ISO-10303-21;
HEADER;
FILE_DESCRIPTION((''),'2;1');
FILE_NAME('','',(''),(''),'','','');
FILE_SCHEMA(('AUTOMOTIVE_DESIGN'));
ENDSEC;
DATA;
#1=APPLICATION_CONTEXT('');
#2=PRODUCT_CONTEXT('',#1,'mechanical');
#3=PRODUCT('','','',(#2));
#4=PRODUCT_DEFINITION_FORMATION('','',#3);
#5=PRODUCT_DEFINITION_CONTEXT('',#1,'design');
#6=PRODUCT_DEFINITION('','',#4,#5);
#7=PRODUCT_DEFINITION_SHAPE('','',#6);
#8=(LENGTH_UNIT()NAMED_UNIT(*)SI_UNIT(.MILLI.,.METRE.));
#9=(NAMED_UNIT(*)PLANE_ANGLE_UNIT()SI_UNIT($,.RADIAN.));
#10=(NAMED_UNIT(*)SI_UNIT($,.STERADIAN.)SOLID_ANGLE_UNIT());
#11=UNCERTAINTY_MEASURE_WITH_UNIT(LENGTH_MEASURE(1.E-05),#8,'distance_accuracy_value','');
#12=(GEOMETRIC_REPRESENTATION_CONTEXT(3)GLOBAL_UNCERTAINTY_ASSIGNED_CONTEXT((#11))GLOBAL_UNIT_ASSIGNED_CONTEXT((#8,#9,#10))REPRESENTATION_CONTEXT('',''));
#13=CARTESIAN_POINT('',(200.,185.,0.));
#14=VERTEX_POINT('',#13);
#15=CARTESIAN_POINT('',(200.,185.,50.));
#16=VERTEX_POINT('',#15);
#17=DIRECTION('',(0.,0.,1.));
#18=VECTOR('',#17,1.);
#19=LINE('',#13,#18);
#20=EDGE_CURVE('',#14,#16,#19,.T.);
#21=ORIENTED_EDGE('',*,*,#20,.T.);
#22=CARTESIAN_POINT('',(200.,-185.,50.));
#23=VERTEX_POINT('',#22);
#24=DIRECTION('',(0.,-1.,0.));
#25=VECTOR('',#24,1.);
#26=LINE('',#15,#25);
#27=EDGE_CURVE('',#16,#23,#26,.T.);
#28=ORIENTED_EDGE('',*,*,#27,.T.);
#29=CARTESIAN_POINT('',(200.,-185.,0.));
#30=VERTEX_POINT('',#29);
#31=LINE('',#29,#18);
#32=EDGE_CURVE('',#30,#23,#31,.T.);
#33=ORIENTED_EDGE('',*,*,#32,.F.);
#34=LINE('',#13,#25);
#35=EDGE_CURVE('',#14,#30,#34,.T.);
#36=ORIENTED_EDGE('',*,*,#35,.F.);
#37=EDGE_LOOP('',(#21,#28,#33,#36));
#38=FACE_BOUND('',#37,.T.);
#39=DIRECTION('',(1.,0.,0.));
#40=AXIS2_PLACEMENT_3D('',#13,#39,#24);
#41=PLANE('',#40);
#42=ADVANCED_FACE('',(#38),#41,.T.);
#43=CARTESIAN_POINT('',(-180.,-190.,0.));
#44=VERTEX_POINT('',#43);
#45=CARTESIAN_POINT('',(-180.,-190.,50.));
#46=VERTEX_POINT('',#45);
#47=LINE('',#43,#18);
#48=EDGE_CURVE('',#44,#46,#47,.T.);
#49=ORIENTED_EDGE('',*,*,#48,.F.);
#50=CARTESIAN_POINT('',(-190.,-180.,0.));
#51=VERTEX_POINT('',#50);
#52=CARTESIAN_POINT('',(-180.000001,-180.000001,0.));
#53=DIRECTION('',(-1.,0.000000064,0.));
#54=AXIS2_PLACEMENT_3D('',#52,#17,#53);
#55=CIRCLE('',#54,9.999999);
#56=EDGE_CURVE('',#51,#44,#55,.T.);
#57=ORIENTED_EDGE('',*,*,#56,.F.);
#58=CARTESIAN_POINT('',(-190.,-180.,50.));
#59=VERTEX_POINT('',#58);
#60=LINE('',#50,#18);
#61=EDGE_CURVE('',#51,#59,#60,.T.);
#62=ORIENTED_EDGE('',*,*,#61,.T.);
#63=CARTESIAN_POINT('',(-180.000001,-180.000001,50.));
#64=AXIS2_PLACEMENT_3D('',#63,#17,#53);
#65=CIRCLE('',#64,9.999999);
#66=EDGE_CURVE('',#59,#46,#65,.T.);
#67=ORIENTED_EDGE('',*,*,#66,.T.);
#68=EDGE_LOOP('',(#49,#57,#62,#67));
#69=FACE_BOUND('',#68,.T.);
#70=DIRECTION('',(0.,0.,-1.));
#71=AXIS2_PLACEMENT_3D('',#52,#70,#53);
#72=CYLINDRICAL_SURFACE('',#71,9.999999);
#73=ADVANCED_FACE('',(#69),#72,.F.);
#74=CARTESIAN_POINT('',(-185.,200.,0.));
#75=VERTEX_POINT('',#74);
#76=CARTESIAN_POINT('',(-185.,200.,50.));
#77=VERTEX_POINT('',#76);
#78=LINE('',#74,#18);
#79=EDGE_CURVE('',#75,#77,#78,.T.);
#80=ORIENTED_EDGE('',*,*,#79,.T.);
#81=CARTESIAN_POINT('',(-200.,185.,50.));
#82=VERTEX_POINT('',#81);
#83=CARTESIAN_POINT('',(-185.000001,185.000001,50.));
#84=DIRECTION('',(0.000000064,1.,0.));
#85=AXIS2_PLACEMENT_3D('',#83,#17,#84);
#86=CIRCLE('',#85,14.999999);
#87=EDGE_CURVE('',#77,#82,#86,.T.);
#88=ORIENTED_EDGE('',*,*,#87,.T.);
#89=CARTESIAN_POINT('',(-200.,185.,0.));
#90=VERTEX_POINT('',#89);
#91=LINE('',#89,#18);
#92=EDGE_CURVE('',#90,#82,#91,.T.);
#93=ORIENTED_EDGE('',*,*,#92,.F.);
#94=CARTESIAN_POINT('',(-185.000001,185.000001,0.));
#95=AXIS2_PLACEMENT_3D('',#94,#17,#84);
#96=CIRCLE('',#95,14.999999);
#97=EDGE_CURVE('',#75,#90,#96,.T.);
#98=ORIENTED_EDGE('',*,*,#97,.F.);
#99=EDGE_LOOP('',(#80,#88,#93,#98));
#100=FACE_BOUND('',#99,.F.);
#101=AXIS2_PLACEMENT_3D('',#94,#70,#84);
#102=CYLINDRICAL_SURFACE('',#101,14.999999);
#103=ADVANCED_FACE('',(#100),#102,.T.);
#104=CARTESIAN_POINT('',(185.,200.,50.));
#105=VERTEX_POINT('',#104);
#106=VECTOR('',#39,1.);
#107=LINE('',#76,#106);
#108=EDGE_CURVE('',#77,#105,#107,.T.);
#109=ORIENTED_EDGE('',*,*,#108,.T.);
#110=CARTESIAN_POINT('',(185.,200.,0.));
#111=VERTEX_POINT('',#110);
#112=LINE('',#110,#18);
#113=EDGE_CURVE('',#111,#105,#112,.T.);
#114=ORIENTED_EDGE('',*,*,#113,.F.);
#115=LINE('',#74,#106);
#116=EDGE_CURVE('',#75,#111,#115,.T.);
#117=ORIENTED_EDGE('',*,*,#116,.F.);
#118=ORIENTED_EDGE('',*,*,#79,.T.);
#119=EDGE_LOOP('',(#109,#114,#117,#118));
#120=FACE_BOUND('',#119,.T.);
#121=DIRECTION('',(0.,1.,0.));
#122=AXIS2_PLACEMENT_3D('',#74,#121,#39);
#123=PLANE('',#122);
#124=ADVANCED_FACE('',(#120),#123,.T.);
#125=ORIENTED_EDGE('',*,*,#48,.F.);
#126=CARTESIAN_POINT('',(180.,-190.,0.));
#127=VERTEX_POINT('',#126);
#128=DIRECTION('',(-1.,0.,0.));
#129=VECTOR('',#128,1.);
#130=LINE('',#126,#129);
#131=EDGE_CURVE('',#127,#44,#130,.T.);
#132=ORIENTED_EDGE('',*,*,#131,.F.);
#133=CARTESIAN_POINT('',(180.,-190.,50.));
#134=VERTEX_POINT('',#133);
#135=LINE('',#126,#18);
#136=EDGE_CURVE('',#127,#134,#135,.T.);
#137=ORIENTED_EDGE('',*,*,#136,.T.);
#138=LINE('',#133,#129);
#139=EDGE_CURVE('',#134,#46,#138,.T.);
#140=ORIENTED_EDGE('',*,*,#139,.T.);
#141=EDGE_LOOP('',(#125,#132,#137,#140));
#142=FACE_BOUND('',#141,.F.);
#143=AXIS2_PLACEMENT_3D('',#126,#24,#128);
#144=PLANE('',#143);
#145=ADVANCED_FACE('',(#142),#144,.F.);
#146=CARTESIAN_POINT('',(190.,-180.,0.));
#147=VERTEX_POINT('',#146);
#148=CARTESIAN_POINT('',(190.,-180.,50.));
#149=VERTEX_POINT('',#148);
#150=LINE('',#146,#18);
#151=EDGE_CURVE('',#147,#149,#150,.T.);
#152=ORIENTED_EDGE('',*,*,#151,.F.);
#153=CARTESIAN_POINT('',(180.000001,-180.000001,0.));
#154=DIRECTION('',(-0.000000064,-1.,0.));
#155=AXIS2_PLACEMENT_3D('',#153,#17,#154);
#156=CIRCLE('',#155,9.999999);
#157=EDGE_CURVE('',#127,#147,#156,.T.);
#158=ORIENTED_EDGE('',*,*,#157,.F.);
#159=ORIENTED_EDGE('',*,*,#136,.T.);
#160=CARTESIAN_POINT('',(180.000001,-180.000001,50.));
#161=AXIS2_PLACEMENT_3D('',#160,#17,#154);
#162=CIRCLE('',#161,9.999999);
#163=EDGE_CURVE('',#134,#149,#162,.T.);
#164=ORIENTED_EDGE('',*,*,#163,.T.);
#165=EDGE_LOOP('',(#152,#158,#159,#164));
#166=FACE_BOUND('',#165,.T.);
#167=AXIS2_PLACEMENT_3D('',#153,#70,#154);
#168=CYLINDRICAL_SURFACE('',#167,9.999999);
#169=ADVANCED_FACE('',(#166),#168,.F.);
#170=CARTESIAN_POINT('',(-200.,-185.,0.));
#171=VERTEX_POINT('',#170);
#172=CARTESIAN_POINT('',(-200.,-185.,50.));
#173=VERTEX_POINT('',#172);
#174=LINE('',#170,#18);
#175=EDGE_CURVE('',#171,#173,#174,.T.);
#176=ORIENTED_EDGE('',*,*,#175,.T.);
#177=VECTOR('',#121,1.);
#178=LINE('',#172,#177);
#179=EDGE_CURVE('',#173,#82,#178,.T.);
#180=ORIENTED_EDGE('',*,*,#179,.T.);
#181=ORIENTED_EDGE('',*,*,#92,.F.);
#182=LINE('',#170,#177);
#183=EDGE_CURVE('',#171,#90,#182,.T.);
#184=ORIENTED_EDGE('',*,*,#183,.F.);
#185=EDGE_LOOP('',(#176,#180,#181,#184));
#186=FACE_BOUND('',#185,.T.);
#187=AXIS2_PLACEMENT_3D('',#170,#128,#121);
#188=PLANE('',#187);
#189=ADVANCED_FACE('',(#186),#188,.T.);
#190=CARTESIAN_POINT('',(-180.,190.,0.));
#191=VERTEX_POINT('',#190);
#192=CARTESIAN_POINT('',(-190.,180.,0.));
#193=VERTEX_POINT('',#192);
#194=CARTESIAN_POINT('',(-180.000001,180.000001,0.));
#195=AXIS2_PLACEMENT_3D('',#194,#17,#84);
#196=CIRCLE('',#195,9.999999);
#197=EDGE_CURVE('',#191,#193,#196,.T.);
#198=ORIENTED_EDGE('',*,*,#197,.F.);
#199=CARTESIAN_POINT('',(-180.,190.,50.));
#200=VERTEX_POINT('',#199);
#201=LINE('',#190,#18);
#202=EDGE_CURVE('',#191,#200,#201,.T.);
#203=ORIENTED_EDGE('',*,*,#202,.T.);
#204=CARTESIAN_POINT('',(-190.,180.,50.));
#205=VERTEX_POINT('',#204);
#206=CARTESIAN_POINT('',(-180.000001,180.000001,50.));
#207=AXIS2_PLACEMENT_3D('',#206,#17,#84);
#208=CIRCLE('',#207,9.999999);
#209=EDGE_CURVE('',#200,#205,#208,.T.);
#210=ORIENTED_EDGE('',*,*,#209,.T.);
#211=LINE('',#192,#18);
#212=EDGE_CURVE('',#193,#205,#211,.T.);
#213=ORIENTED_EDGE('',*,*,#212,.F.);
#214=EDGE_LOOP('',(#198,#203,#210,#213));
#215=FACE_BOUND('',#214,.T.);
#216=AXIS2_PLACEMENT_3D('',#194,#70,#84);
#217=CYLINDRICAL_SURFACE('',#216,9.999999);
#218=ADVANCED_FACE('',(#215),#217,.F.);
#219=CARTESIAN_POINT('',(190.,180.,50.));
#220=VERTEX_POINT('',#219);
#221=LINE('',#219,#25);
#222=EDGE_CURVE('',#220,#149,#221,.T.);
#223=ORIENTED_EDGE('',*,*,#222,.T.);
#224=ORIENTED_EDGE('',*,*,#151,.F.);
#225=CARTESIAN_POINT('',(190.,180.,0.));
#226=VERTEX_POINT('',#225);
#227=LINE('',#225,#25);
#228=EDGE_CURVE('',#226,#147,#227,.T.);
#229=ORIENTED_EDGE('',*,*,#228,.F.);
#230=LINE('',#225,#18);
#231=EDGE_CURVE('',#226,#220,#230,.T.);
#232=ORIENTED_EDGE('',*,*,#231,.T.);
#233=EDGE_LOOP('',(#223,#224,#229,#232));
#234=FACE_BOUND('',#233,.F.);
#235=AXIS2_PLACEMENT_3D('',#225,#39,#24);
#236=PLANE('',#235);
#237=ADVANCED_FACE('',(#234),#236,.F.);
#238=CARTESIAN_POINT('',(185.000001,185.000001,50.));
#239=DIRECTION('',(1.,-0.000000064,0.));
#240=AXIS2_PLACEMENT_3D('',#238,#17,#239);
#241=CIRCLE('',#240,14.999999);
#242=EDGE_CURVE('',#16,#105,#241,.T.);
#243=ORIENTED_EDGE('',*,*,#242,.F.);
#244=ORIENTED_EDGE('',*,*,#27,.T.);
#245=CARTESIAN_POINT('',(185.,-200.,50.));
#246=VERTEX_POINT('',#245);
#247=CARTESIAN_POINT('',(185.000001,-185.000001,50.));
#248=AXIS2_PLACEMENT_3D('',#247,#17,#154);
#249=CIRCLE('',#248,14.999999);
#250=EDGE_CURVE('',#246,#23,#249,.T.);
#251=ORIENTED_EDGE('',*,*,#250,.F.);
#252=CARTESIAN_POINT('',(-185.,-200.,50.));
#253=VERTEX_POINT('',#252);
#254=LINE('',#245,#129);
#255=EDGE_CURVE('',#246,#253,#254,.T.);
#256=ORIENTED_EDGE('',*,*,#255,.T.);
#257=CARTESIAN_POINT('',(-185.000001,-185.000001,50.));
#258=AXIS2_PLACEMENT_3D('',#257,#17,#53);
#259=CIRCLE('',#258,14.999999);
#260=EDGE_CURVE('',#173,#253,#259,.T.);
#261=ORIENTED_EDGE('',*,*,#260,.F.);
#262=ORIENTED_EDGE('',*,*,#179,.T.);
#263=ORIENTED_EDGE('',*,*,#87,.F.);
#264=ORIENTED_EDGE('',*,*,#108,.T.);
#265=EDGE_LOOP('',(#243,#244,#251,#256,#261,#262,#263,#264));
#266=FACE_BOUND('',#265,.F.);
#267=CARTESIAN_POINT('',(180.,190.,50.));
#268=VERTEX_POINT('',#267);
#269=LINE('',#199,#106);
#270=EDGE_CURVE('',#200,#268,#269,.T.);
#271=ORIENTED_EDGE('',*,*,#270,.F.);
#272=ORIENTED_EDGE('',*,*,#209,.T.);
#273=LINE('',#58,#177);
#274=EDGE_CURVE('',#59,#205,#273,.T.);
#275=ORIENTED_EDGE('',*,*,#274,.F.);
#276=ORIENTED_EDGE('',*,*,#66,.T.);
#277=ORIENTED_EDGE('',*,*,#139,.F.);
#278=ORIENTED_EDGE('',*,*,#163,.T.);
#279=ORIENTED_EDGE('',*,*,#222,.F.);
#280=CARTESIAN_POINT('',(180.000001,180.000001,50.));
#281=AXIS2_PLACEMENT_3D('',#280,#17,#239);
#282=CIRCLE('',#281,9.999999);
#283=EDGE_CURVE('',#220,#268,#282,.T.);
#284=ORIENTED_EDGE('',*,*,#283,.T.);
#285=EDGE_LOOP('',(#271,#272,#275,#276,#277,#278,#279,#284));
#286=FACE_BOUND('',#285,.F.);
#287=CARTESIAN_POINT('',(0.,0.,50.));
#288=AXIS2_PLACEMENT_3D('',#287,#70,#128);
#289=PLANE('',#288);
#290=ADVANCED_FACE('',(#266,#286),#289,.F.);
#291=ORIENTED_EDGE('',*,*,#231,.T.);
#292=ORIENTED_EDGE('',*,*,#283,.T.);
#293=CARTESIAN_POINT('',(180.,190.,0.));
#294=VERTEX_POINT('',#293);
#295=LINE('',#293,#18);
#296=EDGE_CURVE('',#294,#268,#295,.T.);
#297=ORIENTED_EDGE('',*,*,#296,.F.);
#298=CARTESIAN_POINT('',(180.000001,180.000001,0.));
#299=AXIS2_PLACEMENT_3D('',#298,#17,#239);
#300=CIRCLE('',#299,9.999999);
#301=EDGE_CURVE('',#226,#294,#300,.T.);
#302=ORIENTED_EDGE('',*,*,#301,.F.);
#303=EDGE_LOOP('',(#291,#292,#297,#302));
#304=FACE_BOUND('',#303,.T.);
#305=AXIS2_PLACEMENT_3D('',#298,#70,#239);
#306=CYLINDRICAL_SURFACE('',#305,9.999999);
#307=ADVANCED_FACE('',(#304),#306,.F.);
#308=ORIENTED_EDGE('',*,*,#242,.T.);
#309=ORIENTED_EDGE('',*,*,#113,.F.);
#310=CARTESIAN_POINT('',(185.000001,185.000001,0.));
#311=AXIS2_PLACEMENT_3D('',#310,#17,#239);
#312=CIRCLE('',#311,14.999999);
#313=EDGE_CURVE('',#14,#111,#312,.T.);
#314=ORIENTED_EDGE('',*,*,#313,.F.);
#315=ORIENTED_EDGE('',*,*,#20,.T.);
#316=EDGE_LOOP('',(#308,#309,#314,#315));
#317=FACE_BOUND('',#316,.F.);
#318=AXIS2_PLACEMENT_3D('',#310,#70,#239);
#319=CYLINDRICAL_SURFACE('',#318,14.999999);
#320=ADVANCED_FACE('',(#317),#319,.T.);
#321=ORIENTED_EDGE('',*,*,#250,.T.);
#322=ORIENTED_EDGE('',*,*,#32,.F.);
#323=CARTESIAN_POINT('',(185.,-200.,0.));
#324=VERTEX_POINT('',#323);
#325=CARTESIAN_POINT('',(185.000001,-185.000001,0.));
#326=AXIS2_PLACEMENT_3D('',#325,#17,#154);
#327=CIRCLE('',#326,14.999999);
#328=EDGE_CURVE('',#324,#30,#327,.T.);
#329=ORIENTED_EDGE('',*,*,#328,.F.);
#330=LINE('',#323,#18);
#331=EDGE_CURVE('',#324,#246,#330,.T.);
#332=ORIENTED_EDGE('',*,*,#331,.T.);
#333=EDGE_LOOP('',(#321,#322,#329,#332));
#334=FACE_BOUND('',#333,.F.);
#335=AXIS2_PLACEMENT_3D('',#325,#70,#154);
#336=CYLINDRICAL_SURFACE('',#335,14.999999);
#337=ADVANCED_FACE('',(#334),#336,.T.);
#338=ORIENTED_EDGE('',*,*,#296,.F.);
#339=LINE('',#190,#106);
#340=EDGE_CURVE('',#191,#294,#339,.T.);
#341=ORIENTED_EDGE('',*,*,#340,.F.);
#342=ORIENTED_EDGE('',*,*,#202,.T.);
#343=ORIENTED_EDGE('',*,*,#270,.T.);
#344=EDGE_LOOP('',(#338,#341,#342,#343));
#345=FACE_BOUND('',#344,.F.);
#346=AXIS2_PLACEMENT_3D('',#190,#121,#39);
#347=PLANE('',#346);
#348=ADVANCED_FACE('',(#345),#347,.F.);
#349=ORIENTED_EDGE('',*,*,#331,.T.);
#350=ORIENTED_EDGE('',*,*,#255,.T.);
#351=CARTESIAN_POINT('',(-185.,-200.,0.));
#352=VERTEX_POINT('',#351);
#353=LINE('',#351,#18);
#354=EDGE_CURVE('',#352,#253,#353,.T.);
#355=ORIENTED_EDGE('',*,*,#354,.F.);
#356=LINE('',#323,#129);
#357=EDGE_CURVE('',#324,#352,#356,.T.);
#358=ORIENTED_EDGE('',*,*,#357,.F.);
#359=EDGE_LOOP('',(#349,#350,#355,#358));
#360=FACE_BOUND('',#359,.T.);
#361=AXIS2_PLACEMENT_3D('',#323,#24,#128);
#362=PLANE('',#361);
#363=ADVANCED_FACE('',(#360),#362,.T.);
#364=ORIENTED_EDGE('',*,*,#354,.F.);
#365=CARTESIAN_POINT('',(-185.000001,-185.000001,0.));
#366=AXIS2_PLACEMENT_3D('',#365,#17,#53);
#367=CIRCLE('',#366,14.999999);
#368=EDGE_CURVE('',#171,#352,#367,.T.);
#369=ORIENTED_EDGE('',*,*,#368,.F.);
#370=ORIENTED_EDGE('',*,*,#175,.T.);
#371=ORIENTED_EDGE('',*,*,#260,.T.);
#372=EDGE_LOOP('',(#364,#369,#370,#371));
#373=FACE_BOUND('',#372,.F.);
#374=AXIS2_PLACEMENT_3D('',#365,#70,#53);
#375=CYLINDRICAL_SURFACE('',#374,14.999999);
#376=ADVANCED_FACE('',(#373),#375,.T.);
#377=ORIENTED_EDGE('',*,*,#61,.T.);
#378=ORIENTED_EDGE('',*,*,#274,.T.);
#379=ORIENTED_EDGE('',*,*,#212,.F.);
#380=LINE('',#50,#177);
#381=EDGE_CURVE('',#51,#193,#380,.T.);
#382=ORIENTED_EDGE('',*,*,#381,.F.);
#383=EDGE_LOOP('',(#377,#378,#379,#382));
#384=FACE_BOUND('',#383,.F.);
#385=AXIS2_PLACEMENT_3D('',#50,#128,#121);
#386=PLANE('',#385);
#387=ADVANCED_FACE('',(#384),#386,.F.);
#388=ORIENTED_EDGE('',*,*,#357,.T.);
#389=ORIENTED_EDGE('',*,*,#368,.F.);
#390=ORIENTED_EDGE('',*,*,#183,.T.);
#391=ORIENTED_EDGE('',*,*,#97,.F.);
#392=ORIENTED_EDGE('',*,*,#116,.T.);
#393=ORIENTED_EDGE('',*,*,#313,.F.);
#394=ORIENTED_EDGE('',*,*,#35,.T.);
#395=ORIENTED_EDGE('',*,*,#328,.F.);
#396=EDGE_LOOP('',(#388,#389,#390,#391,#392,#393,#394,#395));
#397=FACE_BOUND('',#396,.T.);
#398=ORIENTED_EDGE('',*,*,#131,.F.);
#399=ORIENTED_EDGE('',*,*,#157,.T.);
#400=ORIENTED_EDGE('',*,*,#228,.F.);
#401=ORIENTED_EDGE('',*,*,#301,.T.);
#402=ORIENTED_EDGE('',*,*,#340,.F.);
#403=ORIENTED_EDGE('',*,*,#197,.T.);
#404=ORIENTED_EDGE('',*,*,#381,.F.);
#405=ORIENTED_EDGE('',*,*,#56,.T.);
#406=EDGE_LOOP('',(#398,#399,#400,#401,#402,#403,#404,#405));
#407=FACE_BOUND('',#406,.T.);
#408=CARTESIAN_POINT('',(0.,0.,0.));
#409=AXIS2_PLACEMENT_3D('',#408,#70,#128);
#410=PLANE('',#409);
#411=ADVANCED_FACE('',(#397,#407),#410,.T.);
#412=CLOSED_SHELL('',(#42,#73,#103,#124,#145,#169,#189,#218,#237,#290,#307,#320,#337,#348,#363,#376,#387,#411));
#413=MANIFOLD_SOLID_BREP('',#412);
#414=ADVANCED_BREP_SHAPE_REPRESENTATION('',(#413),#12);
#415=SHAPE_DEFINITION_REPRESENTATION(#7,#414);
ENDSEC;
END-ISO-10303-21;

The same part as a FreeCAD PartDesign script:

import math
import FreeCAD as App
import Part
import Sketcher
from FreeCAD import Vector
Q = App.Units.Quantity

doc = App.newDocument("Part")
body = doc.addObject("PartDesign::Body", "Body")

sketch1 = body.newObject("Sketcher::SketchObject", "Sketch")
sketch1.AttachmentSupport = (doc.getObject("XY_Plane"), [""])
sketch1.MapMode = "FlatFace"
sketch1.addGeometry([
    Part.LineSegment(Vector(185, 200, 0), Vector(-185, 200, 0)),
    Part.ArcOfCircle(Part.Circle(Vector(-185.000001, 185.000001, 0), Vector(0, 0, 1), 14.999999), math.radians(89.999996), math.radians(180.000004)),
    Part.LineSegment(Vector(-200, 185, 0), Vector(-200, -185, 0)),
    Part.ArcOfCircle(Part.Circle(Vector(-185.000001, -185.000001, 0), Vector(0, 0, 1), 14.999999), math.radians(179.999996), math.radians(270.000004)),
    Part.LineSegment(Vector(-185, -200, 0), Vector(185, -200, 0)),
    Part.ArcOfCircle(Part.Circle(Vector(185.000001, -185.000001, 0), Vector(0, 0, 1), 14.999999), math.radians(-90.000004), math.radians(0.000004)),
    Part.LineSegment(Vector(200, -185, 0), Vector(200, 185, 0)),
    Part.ArcOfCircle(Part.Circle(Vector(185.000001, 185.000001, 0), Vector(0, 0, 1), 14.999999), math.radians(-0.000004), math.radians(90.000004)),
    Part.LineSegment(Vector(-180, 190, 0), Vector(180, 190, 0)),
    Part.ArcOfCircle(Part.Circle(Vector(180.000001, 180.000001, 0), Vector(0, 0, 1), 9.999999), math.radians(-0.000004), math.radians(90.000004)),
    Part.LineSegment(Vector(190, 180, 0), Vector(190, -180, 0)),
    Part.ArcOfCircle(Part.Circle(Vector(180.000001, -180.000001, 0), Vector(0, 0, 1), 9.999999), math.radians(-90.000004), math.radians(0.000004)),
    Part.LineSegment(Vector(180, -190, 0), Vector(-180, -190, 0)),
    Part.ArcOfCircle(Part.Circle(Vector(-180.000001, -180.000001, 0), Vector(0, 0, 1), 9.999999), math.radians(179.999996), math.radians(270.000004)),
    Part.LineSegment(Vector(-190, -180, 0), Vector(-190, 180, 0)),
    Part.ArcOfCircle(Part.Circle(Vector(-180.000001, 180.000001, 0), Vector(0, 0, 1), 9.999999), math.radians(89.999996), math.radians(180.000004)),
], False)
sketch1.addConstraint([
    Sketcher.Constraint("Tangent", 0, 2, 1, 1),
    Sketcher.Constraint("Tangent", 1, 2, 2, 1),
    Sketcher.Constraint("Tangent", 2, 2, 3, 1),
    Sketcher.Constraint("Tangent", 3, 2, 4, 1),
    Sketcher.Constraint("Tangent", 4, 2, 5, 1),
    Sketcher.Constraint("Tangent", 5, 2, 6, 1),
    Sketcher.Constraint("Tangent", 6, 2, 7, 1),
    Sketcher.Constraint("Tangent", 7, 2, 0, 1),
    Sketcher.Constraint("Tangent", 8, 2, 9, 2),
    Sketcher.Constraint("Tangent", 9, 1, 10, 1),
    Sketcher.Constraint("Tangent", 10, 2, 11, 2),
    Sketcher.Constraint("Tangent", 11, 1, 12, 1),
    Sketcher.Constraint("Tangent", 12, 2, 13, 2),
    Sketcher.Constraint("Tangent", 13, 1, 14, 1),
    Sketcher.Constraint("Tangent", 14, 2, 15, 2),
    Sketcher.Constraint("Tangent", 15, 1, 8, 1),
    Sketcher.Constraint("Horizontal", 0),
    Sketcher.Constraint("Vertical", 2),
    Sketcher.Constraint("Horizontal", 4),
    Sketcher.Constraint("Vertical", 6),
    Sketcher.Constraint("Horizontal", 8),
    Sketcher.Constraint("Vertical", 10),
    Sketcher.Constraint("Horizontal", 12),
    Sketcher.Constraint("Vertical", 14),
    Sketcher.Constraint("Equal", 1, 3),
    Sketcher.Constraint("Equal", 3, 5),
    Sketcher.Constraint("Equal", 5, 7),
    Sketcher.Constraint("Equal", 9, 11),
    Sketcher.Constraint("Equal", 11, 13),
    Sketcher.Constraint("Equal", 13, 15),
    Sketcher.Constraint("Symmetric", 1, 3, 5, 3, -1, 1),
    Sketcher.Constraint("Symmetric", 9, 3, 13, 3, -1, 1),
    Sketcher.Constraint("Equal", 4, 2),
    Sketcher.Constraint("Equal", 12, 10),
    Sketcher.Constraint("Radius", 1, Q("14.999999 mm")),
    Sketcher.Constraint("Radius", 9, Q("9.999999 mm")),
    Sketcher.Constraint("DistanceX", 0, 2, 0, 1, Q("370 mm")),
    Sketcher.Constraint("DistanceX", 8, 1, 8, 2, Q("360 mm")),
])
pad1 = body.newObject("PartDesign::Pad", "Pad")
pad1.Profile = sketch1
pad1.Length = 50

doc.recompute()
